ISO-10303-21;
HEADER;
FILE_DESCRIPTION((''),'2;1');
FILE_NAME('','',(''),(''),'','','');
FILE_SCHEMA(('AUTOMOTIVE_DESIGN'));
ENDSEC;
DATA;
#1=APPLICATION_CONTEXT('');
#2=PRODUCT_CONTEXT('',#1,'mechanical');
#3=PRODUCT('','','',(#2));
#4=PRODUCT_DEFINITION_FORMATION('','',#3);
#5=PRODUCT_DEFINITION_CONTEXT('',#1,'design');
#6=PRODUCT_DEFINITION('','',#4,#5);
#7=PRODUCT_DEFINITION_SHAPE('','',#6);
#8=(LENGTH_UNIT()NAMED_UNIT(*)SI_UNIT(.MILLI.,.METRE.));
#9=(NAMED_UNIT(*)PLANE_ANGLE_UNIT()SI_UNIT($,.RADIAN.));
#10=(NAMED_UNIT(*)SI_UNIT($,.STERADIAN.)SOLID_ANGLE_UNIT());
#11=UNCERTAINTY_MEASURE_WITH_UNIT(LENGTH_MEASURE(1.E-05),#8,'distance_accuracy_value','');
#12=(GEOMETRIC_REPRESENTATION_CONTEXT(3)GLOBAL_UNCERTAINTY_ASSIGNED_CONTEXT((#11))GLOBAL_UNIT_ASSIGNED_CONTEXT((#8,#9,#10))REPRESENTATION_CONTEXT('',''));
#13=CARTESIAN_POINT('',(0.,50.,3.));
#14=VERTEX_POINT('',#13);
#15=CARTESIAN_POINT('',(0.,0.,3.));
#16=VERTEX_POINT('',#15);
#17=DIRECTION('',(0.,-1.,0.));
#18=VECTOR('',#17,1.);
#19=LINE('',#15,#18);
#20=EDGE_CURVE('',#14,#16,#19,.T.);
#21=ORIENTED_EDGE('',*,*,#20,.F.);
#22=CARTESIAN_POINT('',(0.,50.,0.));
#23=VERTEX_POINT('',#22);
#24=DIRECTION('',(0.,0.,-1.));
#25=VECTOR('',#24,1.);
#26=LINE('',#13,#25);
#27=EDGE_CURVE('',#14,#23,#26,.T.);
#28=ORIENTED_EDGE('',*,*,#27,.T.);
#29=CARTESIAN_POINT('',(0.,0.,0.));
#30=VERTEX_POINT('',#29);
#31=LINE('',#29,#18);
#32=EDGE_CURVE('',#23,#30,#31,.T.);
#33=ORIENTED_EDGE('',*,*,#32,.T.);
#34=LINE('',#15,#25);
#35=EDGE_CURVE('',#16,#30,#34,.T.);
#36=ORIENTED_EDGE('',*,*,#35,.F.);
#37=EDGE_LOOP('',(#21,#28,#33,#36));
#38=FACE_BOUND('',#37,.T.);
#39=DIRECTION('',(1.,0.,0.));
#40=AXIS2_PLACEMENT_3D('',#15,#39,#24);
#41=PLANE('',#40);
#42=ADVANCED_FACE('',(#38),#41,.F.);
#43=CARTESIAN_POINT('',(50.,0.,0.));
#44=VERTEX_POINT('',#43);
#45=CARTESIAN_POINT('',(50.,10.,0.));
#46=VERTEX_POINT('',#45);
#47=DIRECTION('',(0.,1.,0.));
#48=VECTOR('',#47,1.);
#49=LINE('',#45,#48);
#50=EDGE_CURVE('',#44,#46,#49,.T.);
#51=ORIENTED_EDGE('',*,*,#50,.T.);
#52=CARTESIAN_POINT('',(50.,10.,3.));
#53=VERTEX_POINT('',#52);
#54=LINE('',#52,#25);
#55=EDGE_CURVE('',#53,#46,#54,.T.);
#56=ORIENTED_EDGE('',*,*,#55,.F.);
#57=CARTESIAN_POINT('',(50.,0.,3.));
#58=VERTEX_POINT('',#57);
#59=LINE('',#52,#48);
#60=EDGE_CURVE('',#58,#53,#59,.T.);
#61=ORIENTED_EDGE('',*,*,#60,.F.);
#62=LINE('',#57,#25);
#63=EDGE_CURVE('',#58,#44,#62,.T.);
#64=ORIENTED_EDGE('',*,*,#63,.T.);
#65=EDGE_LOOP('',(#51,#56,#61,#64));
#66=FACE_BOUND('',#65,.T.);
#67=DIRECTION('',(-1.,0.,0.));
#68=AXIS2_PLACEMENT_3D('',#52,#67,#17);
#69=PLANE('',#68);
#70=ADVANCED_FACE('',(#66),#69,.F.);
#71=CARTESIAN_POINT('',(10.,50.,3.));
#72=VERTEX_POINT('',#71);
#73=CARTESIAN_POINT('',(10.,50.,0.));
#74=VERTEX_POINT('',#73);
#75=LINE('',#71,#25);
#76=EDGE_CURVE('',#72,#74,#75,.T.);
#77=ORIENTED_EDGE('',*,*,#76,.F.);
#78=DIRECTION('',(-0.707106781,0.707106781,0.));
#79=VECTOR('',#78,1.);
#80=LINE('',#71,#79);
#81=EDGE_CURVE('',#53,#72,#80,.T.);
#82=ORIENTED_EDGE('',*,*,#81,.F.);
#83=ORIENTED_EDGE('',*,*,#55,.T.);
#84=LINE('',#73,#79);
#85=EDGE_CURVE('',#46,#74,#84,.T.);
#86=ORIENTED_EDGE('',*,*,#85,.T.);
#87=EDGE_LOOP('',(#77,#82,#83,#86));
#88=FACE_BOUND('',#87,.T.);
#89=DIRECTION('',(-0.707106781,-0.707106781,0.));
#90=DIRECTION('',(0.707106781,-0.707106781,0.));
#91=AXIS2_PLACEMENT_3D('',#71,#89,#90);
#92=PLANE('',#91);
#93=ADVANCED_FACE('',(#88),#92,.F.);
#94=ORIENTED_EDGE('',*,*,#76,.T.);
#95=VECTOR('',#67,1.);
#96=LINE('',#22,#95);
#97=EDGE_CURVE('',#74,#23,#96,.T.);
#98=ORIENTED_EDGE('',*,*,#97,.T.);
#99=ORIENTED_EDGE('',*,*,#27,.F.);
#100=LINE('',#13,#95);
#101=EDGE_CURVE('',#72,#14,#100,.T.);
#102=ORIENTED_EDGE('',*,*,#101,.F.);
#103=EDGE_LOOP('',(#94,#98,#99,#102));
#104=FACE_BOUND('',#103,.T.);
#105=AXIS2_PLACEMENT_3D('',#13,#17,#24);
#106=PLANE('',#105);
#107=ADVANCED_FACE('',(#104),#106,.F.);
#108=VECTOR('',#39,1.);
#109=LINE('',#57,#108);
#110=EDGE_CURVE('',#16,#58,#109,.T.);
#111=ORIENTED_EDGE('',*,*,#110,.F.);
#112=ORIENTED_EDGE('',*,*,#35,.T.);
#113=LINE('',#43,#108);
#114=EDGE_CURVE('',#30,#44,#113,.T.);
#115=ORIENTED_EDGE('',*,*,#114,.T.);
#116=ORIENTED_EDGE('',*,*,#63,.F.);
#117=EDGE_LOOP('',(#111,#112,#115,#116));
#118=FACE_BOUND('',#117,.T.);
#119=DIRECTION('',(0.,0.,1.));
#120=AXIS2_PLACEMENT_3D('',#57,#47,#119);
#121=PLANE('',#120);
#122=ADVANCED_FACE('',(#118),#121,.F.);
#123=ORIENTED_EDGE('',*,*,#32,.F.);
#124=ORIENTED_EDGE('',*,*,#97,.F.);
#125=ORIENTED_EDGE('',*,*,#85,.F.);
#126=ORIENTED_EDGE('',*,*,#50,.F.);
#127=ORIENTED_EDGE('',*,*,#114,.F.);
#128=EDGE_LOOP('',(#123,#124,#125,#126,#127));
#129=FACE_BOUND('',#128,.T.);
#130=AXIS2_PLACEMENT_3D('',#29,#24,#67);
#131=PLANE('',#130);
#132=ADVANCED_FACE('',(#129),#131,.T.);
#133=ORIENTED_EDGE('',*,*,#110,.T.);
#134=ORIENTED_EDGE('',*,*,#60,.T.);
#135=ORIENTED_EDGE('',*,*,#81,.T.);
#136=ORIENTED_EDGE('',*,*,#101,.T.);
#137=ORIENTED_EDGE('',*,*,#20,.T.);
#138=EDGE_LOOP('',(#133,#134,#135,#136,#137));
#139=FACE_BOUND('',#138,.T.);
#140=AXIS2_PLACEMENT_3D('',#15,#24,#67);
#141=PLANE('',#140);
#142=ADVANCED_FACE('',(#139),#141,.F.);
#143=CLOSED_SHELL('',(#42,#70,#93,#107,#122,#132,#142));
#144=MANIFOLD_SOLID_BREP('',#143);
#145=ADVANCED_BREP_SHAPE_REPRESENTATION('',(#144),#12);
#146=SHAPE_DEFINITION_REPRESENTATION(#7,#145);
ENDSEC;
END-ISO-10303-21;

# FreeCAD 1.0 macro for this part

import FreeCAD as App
import Part
import Sketcher
Q = App.Units.Quantity

doc = App.newDocument("Part")
body = doc.addObject("PartDesign::Body", "Body")

# Sketch on XY plane
sketch1 = doc.addObject("Sketcher::SketchObject", "Sketch")
body.addObject(sketch1)
sketch1.AttachmentSupport = (doc.XY_Plane, [""])
sketch1.MapMode = "FlatFace"
sketch1.addGeometry([
    Part.LineSegment(App.Vector(0, 50, 0), App.Vector(0, 0, 0)),  # 0
    Part.LineSegment(App.Vector(0, 0, 0), App.Vector(50, 0, 0)),  # 1
    Part.LineSegment(App.Vector(50, 0, 0), App.Vector(50, 10, 0)),  # 2
    Part.LineSegment(App.Vector(50, 10, 0), App.Vector(10, 50, 0)),  # 3
    Part.LineSegment(App.Vector(10, 50, 0), App.Vector(0, 50, 0)),  # 4
], False)
sketch1.addConstraint([
    Sketcher.Constraint("Coincident", 0, 2, 1, 1),
    Sketcher.Constraint("Coincident", 1, 2, 2, 1),
    Sketcher.Constraint("Coincident", 2, 2, 3, 1),
    Sketcher.Constraint("Coincident", 3, 2, 4, 1),
    Sketcher.Constraint("Coincident", 4, 2, 0, 1),
    Sketcher.Constraint("Vertical", 0),
    Sketcher.Constraint("Horizontal", 1),
    Sketcher.Constraint("Vertical", 2),
    Sketcher.Constraint("Horizontal", 4),
    Sketcher.Constraint("Coincident", 0, 2, -1, 1),
    Sketcher.Constraint("Equal", 1, 0),
    Sketcher.Constraint("Equal", 4, 2),
    Sketcher.Constraint("DistanceX", 1, 1, 1, 2, Q("50 mm")),
    Sketcher.Constraint("DistanceX", 4, 2, 4, 1, Q("10 mm")),
])
pad1 = doc.addObject("PartDesign::Pad", "Pad")
body.addObject(pad1)
pad1.Profile = sketch1
pad1.Length = 3

doc.recompute()
